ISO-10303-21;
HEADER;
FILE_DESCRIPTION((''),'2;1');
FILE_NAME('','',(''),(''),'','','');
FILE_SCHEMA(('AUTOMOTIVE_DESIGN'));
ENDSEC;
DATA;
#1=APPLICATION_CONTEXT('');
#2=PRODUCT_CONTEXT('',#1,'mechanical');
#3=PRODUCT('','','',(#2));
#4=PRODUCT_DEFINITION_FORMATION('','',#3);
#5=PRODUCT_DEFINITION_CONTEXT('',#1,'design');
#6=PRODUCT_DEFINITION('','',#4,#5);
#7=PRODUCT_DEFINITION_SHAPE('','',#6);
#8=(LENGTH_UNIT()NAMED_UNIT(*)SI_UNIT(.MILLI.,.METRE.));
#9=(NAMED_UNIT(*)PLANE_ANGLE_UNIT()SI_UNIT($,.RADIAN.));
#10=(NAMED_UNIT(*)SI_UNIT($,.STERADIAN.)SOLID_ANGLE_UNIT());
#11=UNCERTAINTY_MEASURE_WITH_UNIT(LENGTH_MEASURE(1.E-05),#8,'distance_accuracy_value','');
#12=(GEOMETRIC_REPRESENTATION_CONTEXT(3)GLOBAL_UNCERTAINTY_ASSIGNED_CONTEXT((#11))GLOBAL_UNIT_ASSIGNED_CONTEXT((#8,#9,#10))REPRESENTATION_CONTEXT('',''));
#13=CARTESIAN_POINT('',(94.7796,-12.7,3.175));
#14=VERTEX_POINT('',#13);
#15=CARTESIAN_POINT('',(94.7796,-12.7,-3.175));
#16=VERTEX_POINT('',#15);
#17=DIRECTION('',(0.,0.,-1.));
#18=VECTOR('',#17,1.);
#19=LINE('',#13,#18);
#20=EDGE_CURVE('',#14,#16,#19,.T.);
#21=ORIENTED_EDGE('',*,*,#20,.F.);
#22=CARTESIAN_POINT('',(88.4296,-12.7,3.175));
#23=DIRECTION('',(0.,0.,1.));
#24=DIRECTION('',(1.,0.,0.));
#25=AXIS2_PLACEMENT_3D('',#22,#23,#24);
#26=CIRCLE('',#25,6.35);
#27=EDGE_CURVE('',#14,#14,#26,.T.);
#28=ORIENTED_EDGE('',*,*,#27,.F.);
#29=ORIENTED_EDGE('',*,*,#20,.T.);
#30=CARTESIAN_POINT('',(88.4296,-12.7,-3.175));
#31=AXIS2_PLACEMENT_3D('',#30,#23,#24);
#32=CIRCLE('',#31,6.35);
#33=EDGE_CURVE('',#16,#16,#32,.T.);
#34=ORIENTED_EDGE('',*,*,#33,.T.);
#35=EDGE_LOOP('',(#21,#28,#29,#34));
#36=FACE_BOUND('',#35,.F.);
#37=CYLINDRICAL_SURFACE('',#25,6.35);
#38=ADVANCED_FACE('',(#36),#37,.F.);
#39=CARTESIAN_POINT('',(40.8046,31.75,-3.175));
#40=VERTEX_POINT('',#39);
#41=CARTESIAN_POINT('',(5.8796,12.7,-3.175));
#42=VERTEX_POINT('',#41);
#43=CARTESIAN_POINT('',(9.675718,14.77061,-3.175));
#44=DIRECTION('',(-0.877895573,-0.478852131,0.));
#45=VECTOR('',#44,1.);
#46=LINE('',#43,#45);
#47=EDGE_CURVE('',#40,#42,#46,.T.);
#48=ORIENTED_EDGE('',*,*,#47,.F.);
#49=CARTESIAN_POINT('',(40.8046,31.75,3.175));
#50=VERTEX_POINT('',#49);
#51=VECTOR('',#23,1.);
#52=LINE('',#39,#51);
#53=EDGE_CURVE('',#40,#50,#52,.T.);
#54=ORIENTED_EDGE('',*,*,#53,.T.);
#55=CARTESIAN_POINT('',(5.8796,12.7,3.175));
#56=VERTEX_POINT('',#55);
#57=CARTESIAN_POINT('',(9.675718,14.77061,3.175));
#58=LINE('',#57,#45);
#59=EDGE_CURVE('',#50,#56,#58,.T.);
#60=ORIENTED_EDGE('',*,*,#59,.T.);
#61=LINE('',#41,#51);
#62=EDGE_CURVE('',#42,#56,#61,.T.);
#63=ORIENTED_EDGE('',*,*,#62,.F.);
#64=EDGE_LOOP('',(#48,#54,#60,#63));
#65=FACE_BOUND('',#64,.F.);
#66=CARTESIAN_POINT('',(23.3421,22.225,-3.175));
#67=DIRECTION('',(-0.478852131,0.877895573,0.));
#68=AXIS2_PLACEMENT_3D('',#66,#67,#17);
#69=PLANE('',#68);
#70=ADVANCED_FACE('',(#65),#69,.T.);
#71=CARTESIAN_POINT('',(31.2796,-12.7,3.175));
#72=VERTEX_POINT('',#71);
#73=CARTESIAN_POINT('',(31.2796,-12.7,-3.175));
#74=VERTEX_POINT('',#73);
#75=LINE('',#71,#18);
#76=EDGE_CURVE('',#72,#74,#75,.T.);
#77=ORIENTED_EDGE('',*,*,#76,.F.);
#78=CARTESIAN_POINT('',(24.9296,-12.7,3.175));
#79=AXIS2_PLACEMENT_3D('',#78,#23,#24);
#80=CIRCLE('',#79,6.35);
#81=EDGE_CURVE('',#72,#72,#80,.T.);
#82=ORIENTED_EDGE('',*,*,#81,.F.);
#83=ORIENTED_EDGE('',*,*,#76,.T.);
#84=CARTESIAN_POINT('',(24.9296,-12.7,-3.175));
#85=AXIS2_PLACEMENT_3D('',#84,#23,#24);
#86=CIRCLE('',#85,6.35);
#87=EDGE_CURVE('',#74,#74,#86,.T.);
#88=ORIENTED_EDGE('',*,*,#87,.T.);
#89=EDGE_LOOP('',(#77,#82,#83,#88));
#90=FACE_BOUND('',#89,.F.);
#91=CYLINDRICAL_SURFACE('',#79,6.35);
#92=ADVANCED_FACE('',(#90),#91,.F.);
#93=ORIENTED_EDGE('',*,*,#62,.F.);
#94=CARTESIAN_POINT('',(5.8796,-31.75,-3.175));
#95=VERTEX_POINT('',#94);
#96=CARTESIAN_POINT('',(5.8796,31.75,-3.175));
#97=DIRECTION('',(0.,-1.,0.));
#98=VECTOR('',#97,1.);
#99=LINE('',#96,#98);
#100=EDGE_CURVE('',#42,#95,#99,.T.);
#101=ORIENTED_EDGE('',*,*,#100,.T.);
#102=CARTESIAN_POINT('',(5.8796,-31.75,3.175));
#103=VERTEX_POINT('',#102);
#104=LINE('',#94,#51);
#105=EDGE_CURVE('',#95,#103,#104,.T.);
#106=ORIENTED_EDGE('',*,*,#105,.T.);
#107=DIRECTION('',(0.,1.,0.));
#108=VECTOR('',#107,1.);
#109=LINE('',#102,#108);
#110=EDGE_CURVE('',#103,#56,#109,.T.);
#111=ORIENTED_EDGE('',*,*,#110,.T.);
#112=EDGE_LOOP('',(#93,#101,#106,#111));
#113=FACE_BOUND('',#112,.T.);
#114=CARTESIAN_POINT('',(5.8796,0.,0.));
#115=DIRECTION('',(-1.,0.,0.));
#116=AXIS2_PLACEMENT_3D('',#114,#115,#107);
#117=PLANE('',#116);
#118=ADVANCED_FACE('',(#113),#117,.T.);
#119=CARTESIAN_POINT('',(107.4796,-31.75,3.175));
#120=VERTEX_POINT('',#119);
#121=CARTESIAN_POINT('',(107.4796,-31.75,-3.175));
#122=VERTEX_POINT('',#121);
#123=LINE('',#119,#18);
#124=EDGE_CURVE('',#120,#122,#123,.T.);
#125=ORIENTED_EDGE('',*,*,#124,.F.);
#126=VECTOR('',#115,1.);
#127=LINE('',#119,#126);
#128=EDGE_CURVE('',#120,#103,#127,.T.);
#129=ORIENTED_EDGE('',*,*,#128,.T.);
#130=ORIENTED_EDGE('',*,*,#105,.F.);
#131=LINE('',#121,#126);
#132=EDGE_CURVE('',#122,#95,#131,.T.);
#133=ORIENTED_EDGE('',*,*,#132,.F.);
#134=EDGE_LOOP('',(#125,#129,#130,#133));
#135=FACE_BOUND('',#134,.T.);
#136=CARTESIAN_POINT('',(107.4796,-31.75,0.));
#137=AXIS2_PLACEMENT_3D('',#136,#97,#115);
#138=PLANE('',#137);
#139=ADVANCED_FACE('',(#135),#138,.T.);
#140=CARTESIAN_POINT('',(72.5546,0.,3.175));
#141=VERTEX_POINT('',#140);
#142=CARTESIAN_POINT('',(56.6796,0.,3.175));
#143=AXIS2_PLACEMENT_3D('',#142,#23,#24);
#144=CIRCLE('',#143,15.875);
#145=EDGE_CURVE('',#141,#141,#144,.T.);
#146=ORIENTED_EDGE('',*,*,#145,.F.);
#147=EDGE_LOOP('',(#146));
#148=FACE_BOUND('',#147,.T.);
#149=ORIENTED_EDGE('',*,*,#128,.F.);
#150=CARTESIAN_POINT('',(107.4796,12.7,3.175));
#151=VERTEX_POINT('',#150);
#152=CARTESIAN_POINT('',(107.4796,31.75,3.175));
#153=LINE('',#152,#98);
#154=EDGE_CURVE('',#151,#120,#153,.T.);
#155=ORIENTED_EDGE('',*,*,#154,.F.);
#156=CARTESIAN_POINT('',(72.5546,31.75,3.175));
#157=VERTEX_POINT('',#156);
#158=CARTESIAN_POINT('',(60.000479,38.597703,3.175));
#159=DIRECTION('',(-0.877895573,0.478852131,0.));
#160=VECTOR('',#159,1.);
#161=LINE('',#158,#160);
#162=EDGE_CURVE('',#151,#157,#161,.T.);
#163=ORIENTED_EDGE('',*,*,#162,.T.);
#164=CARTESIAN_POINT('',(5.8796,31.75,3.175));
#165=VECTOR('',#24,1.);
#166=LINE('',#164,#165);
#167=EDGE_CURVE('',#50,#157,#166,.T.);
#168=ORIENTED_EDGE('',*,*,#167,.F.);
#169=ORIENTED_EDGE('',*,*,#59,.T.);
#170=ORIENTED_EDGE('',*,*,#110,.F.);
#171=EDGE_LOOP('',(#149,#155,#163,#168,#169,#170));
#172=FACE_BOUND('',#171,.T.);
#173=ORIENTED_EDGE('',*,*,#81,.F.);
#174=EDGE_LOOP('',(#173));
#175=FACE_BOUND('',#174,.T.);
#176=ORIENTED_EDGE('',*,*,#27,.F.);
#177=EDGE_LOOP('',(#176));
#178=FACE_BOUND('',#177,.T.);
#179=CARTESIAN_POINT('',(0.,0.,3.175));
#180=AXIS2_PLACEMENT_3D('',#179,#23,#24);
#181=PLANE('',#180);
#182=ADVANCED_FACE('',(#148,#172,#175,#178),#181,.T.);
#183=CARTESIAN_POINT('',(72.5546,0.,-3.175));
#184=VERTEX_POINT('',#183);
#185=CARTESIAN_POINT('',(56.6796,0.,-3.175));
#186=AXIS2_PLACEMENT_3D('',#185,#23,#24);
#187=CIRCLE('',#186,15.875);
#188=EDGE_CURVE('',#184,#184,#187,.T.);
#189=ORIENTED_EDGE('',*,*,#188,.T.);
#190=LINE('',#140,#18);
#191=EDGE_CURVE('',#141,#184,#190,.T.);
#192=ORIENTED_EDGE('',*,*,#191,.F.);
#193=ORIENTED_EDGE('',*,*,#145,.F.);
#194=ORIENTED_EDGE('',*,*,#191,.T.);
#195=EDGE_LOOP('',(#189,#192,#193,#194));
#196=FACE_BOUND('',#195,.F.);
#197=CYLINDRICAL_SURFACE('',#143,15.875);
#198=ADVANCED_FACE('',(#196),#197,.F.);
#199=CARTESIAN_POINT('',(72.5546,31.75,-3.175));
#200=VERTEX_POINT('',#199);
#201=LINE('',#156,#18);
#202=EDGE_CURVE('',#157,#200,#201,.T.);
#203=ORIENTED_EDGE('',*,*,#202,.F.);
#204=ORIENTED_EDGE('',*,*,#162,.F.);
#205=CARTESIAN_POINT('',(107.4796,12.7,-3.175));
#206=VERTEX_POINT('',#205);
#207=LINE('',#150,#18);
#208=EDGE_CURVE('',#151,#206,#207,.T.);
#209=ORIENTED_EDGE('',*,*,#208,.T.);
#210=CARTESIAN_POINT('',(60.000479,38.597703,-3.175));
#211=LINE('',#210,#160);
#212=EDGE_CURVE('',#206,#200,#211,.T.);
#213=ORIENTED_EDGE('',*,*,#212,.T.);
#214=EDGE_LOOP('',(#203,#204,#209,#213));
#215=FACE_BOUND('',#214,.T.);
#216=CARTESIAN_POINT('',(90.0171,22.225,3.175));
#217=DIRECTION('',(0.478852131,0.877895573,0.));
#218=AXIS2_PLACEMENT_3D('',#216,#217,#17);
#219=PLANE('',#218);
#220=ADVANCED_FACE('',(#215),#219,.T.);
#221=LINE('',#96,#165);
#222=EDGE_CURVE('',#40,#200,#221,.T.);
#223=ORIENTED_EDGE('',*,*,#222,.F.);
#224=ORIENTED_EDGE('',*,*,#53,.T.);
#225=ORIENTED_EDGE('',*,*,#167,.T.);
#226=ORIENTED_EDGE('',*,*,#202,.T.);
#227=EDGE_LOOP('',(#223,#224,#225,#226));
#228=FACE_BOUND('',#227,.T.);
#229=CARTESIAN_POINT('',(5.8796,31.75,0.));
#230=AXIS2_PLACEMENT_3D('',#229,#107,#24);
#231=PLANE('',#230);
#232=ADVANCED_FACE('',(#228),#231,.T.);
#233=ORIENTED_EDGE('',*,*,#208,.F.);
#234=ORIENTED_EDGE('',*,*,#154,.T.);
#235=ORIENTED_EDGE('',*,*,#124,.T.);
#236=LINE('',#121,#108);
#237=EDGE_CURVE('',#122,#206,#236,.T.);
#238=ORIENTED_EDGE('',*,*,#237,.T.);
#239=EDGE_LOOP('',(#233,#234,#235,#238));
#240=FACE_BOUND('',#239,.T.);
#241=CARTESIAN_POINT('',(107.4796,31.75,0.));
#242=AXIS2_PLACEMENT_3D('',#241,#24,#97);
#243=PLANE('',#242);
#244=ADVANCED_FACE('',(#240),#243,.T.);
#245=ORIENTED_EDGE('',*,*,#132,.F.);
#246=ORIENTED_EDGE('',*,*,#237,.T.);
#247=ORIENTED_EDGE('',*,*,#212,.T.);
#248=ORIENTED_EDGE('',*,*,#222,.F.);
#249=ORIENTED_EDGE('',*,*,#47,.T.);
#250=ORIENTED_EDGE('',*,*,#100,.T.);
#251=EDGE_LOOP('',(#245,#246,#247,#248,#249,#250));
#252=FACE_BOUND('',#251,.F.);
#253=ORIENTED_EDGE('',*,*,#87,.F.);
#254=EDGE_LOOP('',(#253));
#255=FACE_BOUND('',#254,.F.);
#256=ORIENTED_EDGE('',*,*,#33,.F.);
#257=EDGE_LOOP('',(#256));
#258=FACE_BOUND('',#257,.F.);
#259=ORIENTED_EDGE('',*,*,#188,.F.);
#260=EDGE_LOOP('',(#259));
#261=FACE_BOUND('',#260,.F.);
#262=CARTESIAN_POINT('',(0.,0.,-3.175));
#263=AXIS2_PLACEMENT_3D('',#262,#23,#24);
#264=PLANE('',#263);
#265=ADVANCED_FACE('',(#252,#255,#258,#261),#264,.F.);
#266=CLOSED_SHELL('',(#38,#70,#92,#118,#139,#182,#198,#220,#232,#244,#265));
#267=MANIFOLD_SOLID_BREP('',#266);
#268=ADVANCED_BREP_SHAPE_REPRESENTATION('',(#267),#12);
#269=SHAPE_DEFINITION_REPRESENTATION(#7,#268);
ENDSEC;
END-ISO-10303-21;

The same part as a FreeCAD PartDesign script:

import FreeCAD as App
import Part
import Sketcher

V = App.Vector
Q = App.Units.Quantity


def edges_at(feature, points):
    """Names of the edges that pass closest to the given points."""
    edges = feature.Shape.Edges
    near = lambda p: min(range(len(edges)), key=lambda i: edges[i].distToShape(Part.Vertex(*p))[0])
    return sorted({f"Edge{near(p) + 1}" for p in points})


def add_polygon(sketch, points):
    """Adds a closed chain of lines whose ends are joined by coincident constraints."""
    first, n = sketch.GeometryCount, len(points)
    for a, b in zip(points, points[1:] + points[:1]):
        sketch.addGeometry(Part.LineSegment(App.Vector(*a, 0), App.Vector(*b, 0)), False)
    for i in range(n):
        sketch.addConstraint(Sketcher.Constraint("Coincident", first + i, 2, first + (i + 1) % n, 1))

doc = App.newDocument("Part")
params = doc.addObject("Spreadsheet::Sheet", "Params")
for row, (alias, value) in enumerate([
    ("sketch1_width", "4 in"),
    ("sketch1_height", "2.5 in"),
    ("pad1_length", "0.25 in"),
    ("sketch2_diameter", "0.5 in"),
    ("sketch2_diameter2", "1.25 in"),
    ("pocket1_length", "0.25 in"),
    ("chamfer_size", "0.75 in"),
    ("chamfer_size2", "1.375 in"),
    ("chamfer2_size", "1.375 in"),
    ("chamfer2_size2", "0.75 in"),
], start=1):
    params.set(f"A{row}", alias)
    params.set(f"B{row}", "=" + value)
    params.setAlias(f"B{row}", alias)

body = doc.addObject("PartDesign::Body", "Body")

sketch1 = body.newObject("Sketcher::SketchObject", "Sketch")
sketch1.AttachmentSupport = (doc.getObject("XY_Plane"), [""])
sketch1.MapMode = "FlatFace"
add_polygon(sketch1, [(107, 32), (6, 32), (6, -32), (107, -32)])
sketch1.addConstraint([
    Sketcher.Constraint("Horizontal", 0),
    Sketcher.Constraint("Vertical", 1),
    Sketcher.Constraint("Horizontal", 2),
    Sketcher.Constraint("Vertical", 3),
    Sketcher.Constraint("DistanceX", 0, 2, 0, 1, Q("4 in")),
    Sketcher.Constraint("DistanceY", 1, 2, 1, 1, Q("2.5 in")),
    Sketcher.Constraint("DistanceY", -1, 1, 0, 2, Q("1.25 in")),
    Sketcher.Constraint("DistanceX", -1, 1, 0, 2, Q("5.8796 mm")),
])
sketch1.setExpression("Constraints[8]", "Params.sketch1_width")
sketch1.setExpression("Constraints[9]", "Params.sketch1_height")
pad1 = body.newObject("PartDesign::Pad", "Pad")
pad1.Profile = sketch1
pad1.setExpression("Length", "Params.pad1_length")
pad1.Midplane = True

sketch2 = body.newObject("Sketcher::SketchObject", "Sketch001")
sketch2.AttachmentSupport = (doc.getObject("XY_Plane"), [""])
sketch2.MapMode = "FlatFace"
sketch2.AttachmentOffset = App.Placement(V(0, 0, 0.125 * 25.4), App.Rotation())
sketch2.addGeometry([
    Part.Circle(V(57, 0, 0), V(0, 0, 1), 16),
    Part.Circle(V(25, -13, 0), V(0, 0, 1), 6),
    Part.Circle(V(88, -13, 0), V(0, 0, 1), 6),
], False)
sketch2.addConstraint([
    Sketcher.Constraint("Equal", 1, 2),
    Sketcher.Constraint("PointOnObject", 0, 3, -1),
    Sketcher.Constraint("Horizontal", 1, 3, 2, 3),
    Sketcher.Constraint("Diameter", 1, Q("0.5 in")),
    Sketcher.Constraint("Diameter", 0, Q("1.25 in")),
    Sketcher.Constraint("DistanceY", 1, 3, -1, 1, Q("0.5 in")),
    Sketcher.Constraint("DistanceX", 1, 3, 0, 3, Q("1.25 in")),
    Sketcher.Constraint("DistanceX", 0, 3, 2, 3, Q("1.25 in")),
    Sketcher.Constraint("DistanceX", -1, 1, 0, 3, Q("56.6796 mm")),
])
sketch2.setExpression("Constraints[3]", "Params.sketch2_diameter")
sketch2.setExpression("Constraints[4]", "Params.sketch2_diameter2")
pocket1 = body.newObject("PartDesign::Pocket", "Pocket")
pocket1.Profile = sketch2
pocket1.setExpression("Length", "Params.pocket1_length")
doc.recompute()

chamfer = body.newObject("PartDesign::Chamfer", "Chamfer")
chamfer.Base = (pocket1, edges_at(pocket1, [(107.48, 31.75, 0)]))
chamfer.ChamferType = "Two distances"
chamfer.setExpression("Size", "Params.chamfer_size")
chamfer.setExpression("Size2", "Params.chamfer_size2")
chamfer.FlipDirection = True
doc.recompute()

chamfer2 = body.newObject("PartDesign::Chamfer", "Chamfer001")
chamfer2.Base = (chamfer, edges_at(chamfer, [(5.88, 31.75, 0)]))
chamfer2.ChamferType = "Two distances"
chamfer2.setExpression("Size", "Params.chamfer2_size")
chamfer2.setExpression("Size2", "Params.chamfer2_size2")

doc.recompute()
